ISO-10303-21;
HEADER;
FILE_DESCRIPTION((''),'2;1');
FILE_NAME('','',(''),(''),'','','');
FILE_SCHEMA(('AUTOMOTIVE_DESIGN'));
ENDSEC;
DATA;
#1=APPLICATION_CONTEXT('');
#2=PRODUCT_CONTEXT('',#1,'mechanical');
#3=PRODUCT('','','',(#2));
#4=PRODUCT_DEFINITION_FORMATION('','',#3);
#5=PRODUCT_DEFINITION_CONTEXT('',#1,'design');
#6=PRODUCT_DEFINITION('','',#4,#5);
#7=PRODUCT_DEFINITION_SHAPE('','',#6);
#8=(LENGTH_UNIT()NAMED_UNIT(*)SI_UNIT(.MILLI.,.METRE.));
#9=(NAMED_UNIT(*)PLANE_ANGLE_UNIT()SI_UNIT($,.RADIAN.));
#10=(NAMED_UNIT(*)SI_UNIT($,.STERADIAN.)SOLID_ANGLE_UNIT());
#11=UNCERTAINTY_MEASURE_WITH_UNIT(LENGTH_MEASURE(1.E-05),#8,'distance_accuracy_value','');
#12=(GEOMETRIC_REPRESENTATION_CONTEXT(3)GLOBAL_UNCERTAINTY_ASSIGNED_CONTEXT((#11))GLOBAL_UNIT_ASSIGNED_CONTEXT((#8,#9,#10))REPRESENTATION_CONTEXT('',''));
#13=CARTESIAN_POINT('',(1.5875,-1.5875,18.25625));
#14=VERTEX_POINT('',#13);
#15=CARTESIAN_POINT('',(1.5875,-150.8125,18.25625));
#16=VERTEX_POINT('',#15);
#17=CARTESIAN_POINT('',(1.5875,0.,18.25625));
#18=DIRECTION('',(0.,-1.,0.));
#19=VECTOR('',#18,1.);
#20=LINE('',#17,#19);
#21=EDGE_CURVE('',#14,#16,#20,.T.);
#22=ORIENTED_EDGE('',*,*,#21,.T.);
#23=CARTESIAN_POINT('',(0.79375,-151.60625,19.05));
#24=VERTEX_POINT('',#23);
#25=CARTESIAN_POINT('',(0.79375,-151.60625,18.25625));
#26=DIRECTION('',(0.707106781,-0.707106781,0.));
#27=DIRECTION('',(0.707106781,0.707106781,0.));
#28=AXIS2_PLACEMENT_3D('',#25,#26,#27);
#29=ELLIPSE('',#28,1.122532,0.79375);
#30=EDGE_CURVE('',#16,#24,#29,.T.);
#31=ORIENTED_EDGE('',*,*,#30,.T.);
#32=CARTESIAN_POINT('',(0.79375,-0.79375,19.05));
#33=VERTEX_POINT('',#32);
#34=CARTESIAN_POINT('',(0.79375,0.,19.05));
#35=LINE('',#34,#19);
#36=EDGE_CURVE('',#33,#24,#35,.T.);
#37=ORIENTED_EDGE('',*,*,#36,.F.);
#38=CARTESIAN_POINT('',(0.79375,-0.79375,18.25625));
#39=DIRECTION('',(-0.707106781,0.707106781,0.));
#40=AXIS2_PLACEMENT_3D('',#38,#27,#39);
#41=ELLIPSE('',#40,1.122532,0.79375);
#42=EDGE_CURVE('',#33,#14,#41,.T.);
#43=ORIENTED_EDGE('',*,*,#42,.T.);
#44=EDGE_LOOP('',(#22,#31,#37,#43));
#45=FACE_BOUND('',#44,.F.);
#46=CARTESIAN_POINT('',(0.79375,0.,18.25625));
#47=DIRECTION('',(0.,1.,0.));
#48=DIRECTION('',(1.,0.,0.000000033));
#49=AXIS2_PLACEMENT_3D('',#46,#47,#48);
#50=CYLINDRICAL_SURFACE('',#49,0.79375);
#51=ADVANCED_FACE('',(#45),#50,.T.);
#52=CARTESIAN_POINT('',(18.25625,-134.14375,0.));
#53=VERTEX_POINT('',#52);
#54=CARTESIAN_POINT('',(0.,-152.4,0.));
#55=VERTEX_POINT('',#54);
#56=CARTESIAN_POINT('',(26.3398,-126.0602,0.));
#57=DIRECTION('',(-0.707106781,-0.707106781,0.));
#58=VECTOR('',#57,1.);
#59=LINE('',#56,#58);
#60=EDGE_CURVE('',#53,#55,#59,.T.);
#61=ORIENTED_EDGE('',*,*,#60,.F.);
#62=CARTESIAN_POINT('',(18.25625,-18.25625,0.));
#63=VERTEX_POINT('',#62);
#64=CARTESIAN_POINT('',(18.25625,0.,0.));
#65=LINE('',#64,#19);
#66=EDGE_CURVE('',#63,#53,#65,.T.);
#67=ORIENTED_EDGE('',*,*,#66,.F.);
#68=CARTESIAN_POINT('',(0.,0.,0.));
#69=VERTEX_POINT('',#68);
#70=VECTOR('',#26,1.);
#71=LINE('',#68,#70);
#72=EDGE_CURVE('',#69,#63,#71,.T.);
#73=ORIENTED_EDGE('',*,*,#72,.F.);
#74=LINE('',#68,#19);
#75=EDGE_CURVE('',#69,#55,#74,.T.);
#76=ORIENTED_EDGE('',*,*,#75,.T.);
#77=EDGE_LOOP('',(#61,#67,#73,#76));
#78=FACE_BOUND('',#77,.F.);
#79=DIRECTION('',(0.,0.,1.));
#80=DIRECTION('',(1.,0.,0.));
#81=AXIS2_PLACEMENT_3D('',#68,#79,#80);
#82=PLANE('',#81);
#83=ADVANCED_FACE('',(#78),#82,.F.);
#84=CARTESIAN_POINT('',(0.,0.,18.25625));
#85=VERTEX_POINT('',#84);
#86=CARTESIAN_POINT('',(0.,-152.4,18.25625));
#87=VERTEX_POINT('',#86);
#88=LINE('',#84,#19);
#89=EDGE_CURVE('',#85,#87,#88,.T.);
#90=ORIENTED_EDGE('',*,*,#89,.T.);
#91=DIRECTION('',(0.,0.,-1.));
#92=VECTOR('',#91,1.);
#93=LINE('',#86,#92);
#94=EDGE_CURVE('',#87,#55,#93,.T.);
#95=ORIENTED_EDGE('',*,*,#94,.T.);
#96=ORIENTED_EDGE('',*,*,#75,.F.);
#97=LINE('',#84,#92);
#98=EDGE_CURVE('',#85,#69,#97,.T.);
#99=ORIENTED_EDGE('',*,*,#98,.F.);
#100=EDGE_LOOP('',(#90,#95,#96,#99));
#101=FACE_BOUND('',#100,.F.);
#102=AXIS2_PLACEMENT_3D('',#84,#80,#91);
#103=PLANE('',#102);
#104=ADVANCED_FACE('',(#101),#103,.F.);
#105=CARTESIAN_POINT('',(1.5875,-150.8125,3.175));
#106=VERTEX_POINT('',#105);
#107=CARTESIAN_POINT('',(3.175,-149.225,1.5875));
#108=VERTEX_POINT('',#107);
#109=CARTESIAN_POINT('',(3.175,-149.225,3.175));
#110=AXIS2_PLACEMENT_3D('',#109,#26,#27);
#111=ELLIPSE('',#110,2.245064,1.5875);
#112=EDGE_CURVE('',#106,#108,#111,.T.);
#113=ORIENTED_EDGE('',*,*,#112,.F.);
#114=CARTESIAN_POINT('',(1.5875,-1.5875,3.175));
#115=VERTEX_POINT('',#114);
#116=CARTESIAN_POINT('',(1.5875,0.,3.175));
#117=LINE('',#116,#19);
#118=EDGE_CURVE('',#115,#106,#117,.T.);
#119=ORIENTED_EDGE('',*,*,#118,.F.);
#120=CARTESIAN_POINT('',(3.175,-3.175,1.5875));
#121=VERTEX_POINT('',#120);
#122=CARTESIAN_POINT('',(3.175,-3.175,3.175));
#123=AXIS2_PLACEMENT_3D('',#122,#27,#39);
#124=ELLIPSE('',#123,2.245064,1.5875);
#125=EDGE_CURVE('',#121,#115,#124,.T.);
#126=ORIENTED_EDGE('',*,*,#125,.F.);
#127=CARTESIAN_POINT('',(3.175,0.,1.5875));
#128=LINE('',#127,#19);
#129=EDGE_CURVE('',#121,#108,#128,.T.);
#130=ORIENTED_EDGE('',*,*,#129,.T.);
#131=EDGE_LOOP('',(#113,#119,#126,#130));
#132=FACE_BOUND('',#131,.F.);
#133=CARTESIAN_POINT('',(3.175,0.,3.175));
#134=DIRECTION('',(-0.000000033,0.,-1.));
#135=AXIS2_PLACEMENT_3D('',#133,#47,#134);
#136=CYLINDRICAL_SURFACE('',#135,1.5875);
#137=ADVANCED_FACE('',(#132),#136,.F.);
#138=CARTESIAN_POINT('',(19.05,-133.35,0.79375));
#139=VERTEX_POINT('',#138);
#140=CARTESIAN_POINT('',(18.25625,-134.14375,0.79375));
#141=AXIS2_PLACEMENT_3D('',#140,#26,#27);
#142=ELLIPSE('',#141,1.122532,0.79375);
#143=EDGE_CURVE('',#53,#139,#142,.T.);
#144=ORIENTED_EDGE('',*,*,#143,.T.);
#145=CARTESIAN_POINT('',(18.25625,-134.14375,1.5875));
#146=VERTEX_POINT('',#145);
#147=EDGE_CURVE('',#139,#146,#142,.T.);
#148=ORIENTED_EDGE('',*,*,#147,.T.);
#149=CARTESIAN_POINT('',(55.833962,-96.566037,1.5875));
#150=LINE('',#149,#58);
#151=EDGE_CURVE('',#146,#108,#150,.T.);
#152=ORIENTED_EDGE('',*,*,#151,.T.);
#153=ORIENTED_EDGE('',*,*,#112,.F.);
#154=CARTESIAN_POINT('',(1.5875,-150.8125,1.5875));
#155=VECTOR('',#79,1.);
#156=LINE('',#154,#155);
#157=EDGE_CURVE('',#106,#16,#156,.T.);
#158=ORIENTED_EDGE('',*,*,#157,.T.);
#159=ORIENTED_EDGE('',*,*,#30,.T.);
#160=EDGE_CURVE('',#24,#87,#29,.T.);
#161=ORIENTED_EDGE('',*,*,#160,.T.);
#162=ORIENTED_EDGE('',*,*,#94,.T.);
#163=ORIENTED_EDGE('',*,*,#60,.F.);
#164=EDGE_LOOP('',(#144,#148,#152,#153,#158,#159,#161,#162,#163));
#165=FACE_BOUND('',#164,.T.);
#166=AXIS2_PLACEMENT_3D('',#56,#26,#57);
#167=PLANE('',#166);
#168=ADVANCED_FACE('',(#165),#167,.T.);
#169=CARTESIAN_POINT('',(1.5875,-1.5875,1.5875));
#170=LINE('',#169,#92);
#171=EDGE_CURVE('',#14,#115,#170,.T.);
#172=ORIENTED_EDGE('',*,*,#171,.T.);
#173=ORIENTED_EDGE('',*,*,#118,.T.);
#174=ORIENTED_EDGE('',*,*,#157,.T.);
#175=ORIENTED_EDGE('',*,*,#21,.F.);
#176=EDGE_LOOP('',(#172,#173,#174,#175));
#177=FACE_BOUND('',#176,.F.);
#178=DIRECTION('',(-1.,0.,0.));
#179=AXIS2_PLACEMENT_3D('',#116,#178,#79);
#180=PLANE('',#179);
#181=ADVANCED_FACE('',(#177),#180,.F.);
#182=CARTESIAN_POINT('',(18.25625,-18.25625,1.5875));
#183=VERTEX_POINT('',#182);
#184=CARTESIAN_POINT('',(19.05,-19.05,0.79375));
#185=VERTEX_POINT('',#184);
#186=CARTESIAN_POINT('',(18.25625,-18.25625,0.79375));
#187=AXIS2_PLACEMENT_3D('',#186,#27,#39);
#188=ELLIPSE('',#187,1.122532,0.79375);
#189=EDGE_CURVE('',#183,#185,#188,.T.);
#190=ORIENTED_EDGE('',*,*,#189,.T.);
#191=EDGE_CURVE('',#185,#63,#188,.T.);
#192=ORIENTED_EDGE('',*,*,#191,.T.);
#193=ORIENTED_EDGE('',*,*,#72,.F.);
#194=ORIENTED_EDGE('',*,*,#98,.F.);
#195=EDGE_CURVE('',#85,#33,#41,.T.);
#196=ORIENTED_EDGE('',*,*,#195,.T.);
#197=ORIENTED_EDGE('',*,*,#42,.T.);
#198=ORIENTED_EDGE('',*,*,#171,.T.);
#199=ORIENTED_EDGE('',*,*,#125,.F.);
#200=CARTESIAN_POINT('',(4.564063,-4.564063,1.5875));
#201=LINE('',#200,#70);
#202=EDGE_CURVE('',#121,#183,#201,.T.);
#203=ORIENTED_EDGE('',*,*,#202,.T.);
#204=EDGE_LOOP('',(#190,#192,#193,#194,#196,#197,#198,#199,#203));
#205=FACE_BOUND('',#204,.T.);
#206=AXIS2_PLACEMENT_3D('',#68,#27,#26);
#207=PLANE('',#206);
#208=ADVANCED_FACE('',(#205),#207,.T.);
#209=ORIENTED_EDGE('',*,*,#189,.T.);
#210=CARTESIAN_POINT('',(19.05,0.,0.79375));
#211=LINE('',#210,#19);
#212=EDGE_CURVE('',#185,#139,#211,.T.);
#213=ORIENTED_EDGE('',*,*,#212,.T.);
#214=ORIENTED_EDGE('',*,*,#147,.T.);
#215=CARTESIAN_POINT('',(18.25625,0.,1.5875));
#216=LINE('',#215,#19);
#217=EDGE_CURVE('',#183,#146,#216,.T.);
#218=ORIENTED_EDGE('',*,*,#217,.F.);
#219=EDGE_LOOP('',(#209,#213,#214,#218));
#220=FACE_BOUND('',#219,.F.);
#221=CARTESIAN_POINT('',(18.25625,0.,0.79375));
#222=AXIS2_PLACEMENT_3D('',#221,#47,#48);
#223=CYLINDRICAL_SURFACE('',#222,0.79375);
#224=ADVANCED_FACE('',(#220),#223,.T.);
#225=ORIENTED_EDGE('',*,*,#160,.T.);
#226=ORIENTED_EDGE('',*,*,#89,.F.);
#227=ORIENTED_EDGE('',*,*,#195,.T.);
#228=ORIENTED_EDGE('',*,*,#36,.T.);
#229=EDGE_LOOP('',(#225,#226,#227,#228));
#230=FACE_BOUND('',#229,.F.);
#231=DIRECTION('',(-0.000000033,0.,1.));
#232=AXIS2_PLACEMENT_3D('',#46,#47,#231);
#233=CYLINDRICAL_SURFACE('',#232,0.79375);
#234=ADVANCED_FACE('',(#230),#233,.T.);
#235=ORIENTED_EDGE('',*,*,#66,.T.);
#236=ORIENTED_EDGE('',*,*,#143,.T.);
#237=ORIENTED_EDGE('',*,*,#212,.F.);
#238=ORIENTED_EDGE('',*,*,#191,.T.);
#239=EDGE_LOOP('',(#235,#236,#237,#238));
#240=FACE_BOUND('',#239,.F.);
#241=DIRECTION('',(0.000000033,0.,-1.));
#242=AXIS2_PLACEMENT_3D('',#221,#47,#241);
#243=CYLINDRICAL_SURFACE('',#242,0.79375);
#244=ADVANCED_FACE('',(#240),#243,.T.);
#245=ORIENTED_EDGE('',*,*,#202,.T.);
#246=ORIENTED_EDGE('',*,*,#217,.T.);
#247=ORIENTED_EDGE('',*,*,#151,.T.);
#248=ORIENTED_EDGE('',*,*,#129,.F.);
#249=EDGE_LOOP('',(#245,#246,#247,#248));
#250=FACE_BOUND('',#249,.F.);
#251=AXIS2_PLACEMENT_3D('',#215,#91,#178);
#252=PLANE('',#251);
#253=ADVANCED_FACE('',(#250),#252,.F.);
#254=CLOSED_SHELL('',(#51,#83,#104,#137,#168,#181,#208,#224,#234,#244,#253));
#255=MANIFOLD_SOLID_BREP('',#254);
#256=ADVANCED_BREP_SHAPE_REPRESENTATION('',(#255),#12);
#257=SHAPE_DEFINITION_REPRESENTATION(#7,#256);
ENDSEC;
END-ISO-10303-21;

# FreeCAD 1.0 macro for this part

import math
import FreeCAD as App
import Part
import Sketcher

V = App.Vector
Q = App.Units.Quantity


def add_polygon(sketch, points):
    """Adds a closed chain of lines whose ends are joined by coincident constraints."""
    first, n = sketch.GeometryCount, len(points)
    for a, b in zip(points, points[1:] + points[:1]):
        sketch.addGeometry(Part.LineSegment(App.Vector(*a, 0), App.Vector(*b, 0)), False)
    for i in range(n):
        sketch.addConstraint(Sketcher.Constraint("Coincident", first + i, 2, first + (i + 1) % n, 1))

doc = App.newDocument("Part")
body = doc.addObject("PartDesign::Body", "Body")

# Sketch on XZ plane
sketch1 = body.newObject("Sketcher::SketchObject", "Sketch")
sketch1.AttachmentSupport = (doc.getObject("XZ_Plane"), [""])
sketch1.MapMode = "FlatFace"
sketch1.addGeometry(Part.LineSegment(V(0, 18.3, 0), V(0, 0, 0)), False)
sketch1.addGeometry(Part.LineSegment(V(0, 0, 0), V(18.3, 0, 0)), False)
sketch1.addGeometry(Part.ArcOfCircle(Part.Circle(V(18.3, 0.8, 0), V(0, 0, 1), 0.8), math.radians(-90), math.radians(0)), False)
sketch1.addGeometry(Part.ArcOfCircle(Part.Circle(V(18.3, 0.8, 0), V(0, 0, 1), 0.8), math.radians(0), math.radians(90)), False)
sketch1.addGeometry(Part.LineSegment(V(18.3, 1.6, 0), V(3.2, 1.6, 0)), False)
sketch1.addGeometry(Part.ArcOfCircle(Part.Circle(V(3.2, 3.2, 0), V(0, 0, 1), 1.6), math.radians(-180), math.radians(-90)), False)
sketch1.addGeometry(Part.LineSegment(V(1.6, 3.2, 0), V(1.6, 18.3, 0)), False)
sketch1.addGeometry(Part.ArcOfCircle(Part.Circle(V(0.8, 18.3, 0), V(0, 0, 1), 0.8), math.radians(0), math.radians(90)), False)
sketch1.addGeometry(Part.ArcOfCircle(Part.Circle(V(0.8, 18.3, 0), V(0, 0, 1), 0.8), math.radians(90), math.radians(180)), False)
sketch1.addConstraint(Sketcher.Constraint("Coincident", 0, 2, 1, 1))
sketch1.addConstraint(Sketcher.Constraint("Tangent", 1, 2, 2, 1))
sketch1.addConstraint(Sketcher.Constraint("Tangent", 2, 2, 3, 1))
sketch1.addConstraint(Sketcher.Constraint("Tangent", 3, 2, 4, 1))
sketch1.addConstraint(Sketcher.Constraint("Tangent", 4, 2, 5, 2))
sketch1.addConstraint(Sketcher.Constraint("Tangent", 5, 1, 6, 1))
sketch1.addConstraint(Sketcher.Constraint("Tangent", 6, 2, 7, 1))
sketch1.addConstraint(Sketcher.Constraint("Tangent", 7, 2, 8, 1))
sketch1.addConstraint(Sketcher.Constraint("Tangent", 8, 2, 0, 1))
sketch1.addConstraint(Sketcher.Constraint("Vertical", 0))
sketch1.addConstraint(Sketcher.Constraint("Horizontal", 1))
sketch1.addConstraint(Sketcher.Constraint("Horizontal", 4))
sketch1.addConstraint(Sketcher.Constraint("Vertical", 6))
sketch1.addConstraint(Sketcher.Constraint("Coincident", 0, 2, -1, 1))
sketch1.addConstraint(Sketcher.Constraint("Equal", 2, 3))
sketch1.addConstraint(Sketcher.Constraint("Equal", 3, 7))
sketch1.addConstraint(Sketcher.Constraint("Equal", 7, 8))
sketch1.addConstraint(Sketcher.Constraint("Horizontal", 3, 3, 2, 2))
sketch1.addConstraint(Sketcher.Constraint("Vertical", 8, 3, 7, 2))
sketch1.addConstraint(Sketcher.Constraint("Equal", 1, 0))
sketch1.addConstraint(Sketcher.Constraint("Radius", 2, Q("0.03125 in")))
sketch1.addConstraint(Sketcher.Constraint("Radius", 5, Q("0.0625 in")))
sketch1.addConstraint(Sketcher.Constraint("DistanceX", 1, 1, 1, 2, Q("0.71875 in")))
pad1 = body.newObject("PartDesign::Pad", "Pad")
pad1.Profile = sketch1
pad1.Length = Q("6 in")

# Sketch on XY plane
sketch2 = body.newObject("Sketcher::SketchObject", "Sketch001")
sketch2.AttachmentSupport = (doc.getObject("XY_Plane"), [""])
sketch2.MapMode = "FlatFace"
add_polygon(sketch2, [(30, 0), (0, 0), (30, -30)])  # lines 0-2
add_polygon(sketch2, [(26, -126), (0, -152), (26, -152)])  # lines 3-5
sketch2.addConstraint(Sketcher.Constraint("Horizontal", 0))
sketch2.addConstraint(Sketcher.Constraint("Horizontal", 4))
sketch2.addConstraint(Sketcher.Constraint("Vertical", 5))
sketch2.addConstraint(Sketcher.Constraint("Coincident", 0, 2, -1, 1))
sketch2.addConstraint(Sketcher.Constraint("PointOnObject", 3, 2, -2))
sketch2.addConstraint(Sketcher.Constraint("Perpendicular", 1, 3))
sketch2.addConstraint(Sketcher.Constraint("Equal", 4, 5))
sketch2.addConstraint(Sketcher.Constraint("DistanceY", 3, 2, -1, 1, Q("6 in")))
sketch2.addConstraint(Sketcher.Constraint("DistanceX", 4, 1, 4, 2, Q("1.037 in")))
sketch2.addConstraint(Sketcher.Constraint("DistanceX", 0, 2, 0, 1, 30.352743))
sketch2.addConstraint(Sketcher.Constraint("DistanceX", -1, 1, 1, 2, 29.697519))
pocket1 = body.newObject("PartDesign::Pocket", "Pocket")
pocket1.Profile = sketch2
pocket1.Type = "ThroughAll"
pocket1.Reversed = True

doc.recompute()
